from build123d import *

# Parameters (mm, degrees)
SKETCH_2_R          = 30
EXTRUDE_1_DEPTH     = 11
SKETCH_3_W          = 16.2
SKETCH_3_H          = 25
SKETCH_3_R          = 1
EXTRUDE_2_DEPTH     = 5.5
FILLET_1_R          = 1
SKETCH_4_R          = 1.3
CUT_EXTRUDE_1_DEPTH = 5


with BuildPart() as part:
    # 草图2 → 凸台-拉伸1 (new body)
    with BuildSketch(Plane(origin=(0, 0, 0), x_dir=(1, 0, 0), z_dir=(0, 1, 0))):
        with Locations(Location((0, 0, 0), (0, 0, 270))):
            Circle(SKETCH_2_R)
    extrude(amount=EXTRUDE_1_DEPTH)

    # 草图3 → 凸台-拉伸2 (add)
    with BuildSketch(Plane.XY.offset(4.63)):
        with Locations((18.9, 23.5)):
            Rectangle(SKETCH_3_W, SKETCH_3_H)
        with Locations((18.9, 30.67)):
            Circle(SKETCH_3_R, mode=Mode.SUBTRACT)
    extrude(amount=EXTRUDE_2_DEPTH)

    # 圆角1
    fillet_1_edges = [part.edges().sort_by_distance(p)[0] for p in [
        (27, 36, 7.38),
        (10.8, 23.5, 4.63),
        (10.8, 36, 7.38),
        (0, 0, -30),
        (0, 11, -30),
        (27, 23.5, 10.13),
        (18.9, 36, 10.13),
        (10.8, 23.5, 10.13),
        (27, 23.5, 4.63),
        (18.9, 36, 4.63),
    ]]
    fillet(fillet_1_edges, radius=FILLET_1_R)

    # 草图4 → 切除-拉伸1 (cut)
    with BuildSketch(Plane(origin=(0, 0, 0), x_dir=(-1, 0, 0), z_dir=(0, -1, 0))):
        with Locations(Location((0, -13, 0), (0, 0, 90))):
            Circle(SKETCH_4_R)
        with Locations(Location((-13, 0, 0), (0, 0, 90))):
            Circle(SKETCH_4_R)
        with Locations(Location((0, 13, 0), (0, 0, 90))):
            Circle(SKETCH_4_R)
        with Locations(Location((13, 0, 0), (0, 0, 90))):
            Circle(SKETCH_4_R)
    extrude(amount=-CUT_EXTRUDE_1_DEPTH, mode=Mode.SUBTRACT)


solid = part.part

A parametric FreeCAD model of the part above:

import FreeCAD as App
import Part
import Sketcher

V = App.Vector


def edges_at(feature, points):
    """Names of the edges that pass closest to the given points."""
    edges = feature.Shape.Edges
    near = lambda p: min(range(len(edges)), key=lambda i: edges[i].distToShape(Part.Vertex(*p))[0])
    return sorted({f"Edge{near(p) + 1}" for p in points})


def add_polygon(sketch, points):
    """Adds a closed chain of lines whose ends are joined by coincident constraints."""
    first, n = sketch.GeometryCount, len(points)
    for a, b in zip(points, points[1:] + points[:1]):
        sketch.addGeometry(Part.LineSegment(App.Vector(*a, 0), App.Vector(*b, 0)), False)
    for i in range(n):
        sketch.addConstraint(Sketcher.Constraint("Coincident", first + i, 2, first + (i + 1) % n, 1))

doc = App.newDocument("Part")
body = doc.addObject("PartDesign::Body", "Body")

# Sketch on XZ plane
sketch1 = body.newObject("Sketcher::SketchObject", "Sketch")
sketch1.AttachmentSupport = (doc.getObject("XZ_Plane"), [""])
sketch1.MapMode = "FlatFace"
sketch1.addGeometry(Part.Circle(V(0, 0, 0), V(0, 0, 1), 30), False)
sketch1.addConstraint(Sketcher.Constraint("Coincident", 0, 3, -1, 1))
sketch1.addConstraint(Sketcher.Constraint("Diameter", 0, 60.0))
pad1 = body.newObject("PartDesign::Pad", "Pad")
pad1.Profile = sketch1
pad1.Length = 11
pad1.Reversed = True

# Sketch on XY plane
sketch2 = body.newObject("Sketcher::SketchObject", "Sketch001")
sketch2.AttachmentSupport = (doc.getObject("XY_Plane"), [""])
sketch2.MapMode = "FlatFace"
sketch2.AttachmentOffset = App.Placement(V(0, 0, 4.63), App.Rotation())
add_polygon(sketch2, [(10.8, 36), (10.8, 11), (27, 11), (27, 36)])  # lines 0-3
sketch2.addGeometry(Part.Circle(V(18.9, 30.7, 0), V(0, 0, 1), 1), False)  # 4
sketch2.addConstraint(Sketcher.Constraint("Vertical", 0))
sketch2.addConstraint(Sketcher.Constraint("Horizontal", 1))
sketch2.addConstraint(Sketcher.Constraint("Vertical", 2))
sketch2.addConstraint(Sketcher.Constraint("Horizontal", 3))
sketch2.addConstraint(Sketcher.Constraint("Diameter", 4, 2.0))
sketch2.addConstraint(Sketcher.Constraint("DistanceY", 0, 2, 0, 1, 25.0))
sketch2.addConstraint(Sketcher.Constraint("DistanceX", 1, 1, 1, 2, 16.2))
sketch2.addConstraint(Sketcher.Constraint("DistanceY", -1, 1, 0, 2, 11.0))
sketch2.addConstraint(Sketcher.Constraint("DistanceX", -1, 1, 1, 2, 27.0))
sketch2.addConstraint(Sketcher.Constraint("DistanceX", -1, 1, 4, 3, 18.9))
sketch2.addConstraint(Sketcher.Constraint("DistanceY", -1, 1, 4, 3, 30.67))
pad2 = body.newObject("PartDesign::Pad", "Pad001")
pad2.Profile = sketch2
pad2.Length = 5.5
doc.recompute()

fillet = body.newObject("PartDesign::Fillet", "Fillet")
fillet.Base = (pad2, edges_at(pad2, [
    (27, 36, 7.38),
    (10.8, 23.5, 4.63),
    (10.8, 36, 7.38),
    (0, 0, -30),
    (0, 11, -30),
    (27, 23.5, 10.13),
    (18.9, 36, 10.13),
    (10.8, 23.5, 10.13),
    (27, 23.5, 4.63),
    (18.9, 36, 4.63),
]))
fillet.Radius = 1

# Sketch on XZ plane
sketch3 = body.newObject("Sketcher::SketchObject", "Sketch002")
sketch3.AttachmentSupport = (doc.getObject("XZ_Plane"), [""])
sketch3.MapMode = "FlatFace"
sketch3.addGeometry(Part.Circle(V(0, 13, 0), V(0, 0, 1), 1.3), False)
sketch3.addGeometry(Part.Circle(V(13, 0, 0), V(0, 0, 1), 1.3), False)
sketch3.addGeometry(Part.Circle(V(0, -13, 0), V(0, 0, 1), 1.3), False)
sketch3.addGeometry(Part.Circle(V(-13, 0, 0), V(0, 0, 1), 1.3), False)
sketch3.addConstraint(Sketcher.Constraint("Equal", 0, 1))
sketch3.addConstraint(Sketcher.Constraint("Equal", 1, 2))
sketch3.addConstraint(Sketcher.Constraint("Equal", 2, 3))
sketch3.addConstraint(Sketcher.Constraint("Symmetric", 0, 3, 2, 3, -1, 1))
sketch3.addConstraint(Sketcher.Constraint("Symmetric", 1, 3, 3, 3, -1, 1))
sketch3.addConstraint(Sketcher.Constraint("PointOnObject", 0, 3, -2))
sketch3.addConstraint(Sketcher.Constraint("PointOnObject", 1, 3, -1))
sketch3.addConstraint(Sketcher.Constraint("Diameter", 0, 2.6))
sketch3.addConstraint(Sketcher.Constraint("DistanceY", -1, 1, 0, 3, 13.0))
sketch3.addConstraint(Sketcher.Constraint("DistanceX", -1, 1, 1, 3, 13.0))
pocket1 = body.newObject("PartDesign::Pocket", "Pocket")
pocket1.Profile = sketch3
pocket1.Length = 5

doc.recompute()
